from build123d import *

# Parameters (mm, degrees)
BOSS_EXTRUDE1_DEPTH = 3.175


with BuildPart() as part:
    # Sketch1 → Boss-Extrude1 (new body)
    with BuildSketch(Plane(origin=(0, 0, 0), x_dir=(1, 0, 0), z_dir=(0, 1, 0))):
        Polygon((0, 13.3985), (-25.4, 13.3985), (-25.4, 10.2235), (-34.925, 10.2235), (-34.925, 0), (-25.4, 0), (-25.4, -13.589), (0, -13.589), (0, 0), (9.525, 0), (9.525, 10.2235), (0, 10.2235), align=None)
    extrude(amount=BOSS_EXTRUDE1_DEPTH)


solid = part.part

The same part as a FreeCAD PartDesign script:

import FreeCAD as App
import Part
import Sketcher
Q = App.Units.Quantity

doc = App.newDocument("Part")
params = doc.addObject("Spreadsheet::Sheet", "Params")
for row, (alias, value) in enumerate([
    ("sketch1_width", "1 in"),
    ("sketch1_width2", "0.375 in"),
    ("sketch1_height", "0.125 in"),
    ("sketch1_height2", "0.535 in"),
    ("pad1_length", "0.125 in"),
], start=1):
    params.set(f"A{row}", alias)
    params.set(f"B{row}", "=" + value)
    params.setAlias(f"B{row}", alias)

body = doc.addObject("PartDesign::Body", "Body")

# Sketch on XZ plane
sketch1 = body.newObject("Sketcher::SketchObject", "Sketch")
sketch1.AttachmentSupport = (doc.getObject("XZ_Plane"), [""])
sketch1.MapMode = "FlatFace"
sketch1.addGeometry([
    Part.LineSegment(App.Vector(0, -13.4, 0), App.Vector(-25.4, -13.4, 0)),  # 0
    Part.LineSegment(App.Vector(-25.4, -13.4, 0), App.Vector(-25.4, -10.2, 0)),  # 1
    Part.LineSegment(App.Vector(-25.4, -10.2, 0), App.Vector(-34.9, -10.2, 0)),  # 2
    Part.LineSegment(App.Vector(-34.9, -10.2, 0), App.Vector(-34.9, 0, 0)),  # 3
    Part.LineSegment(App.Vector(-34.9, 0, 0), App.Vector(-25.4, 0, 0)),  # 4
    Part.LineSegment(App.Vector(-25.4, 0, 0), App.Vector(-25.4, 13.6, 0)),  # 5
    Part.LineSegment(App.Vector(-25.4, 13.6, 0), App.Vector(0, 13.6, 0)),  # 6
    Part.LineSegment(App.Vector(0, 13.6, 0), App.Vector(0, 0, 0)),  # 7
    Part.LineSegment(App.Vector(0, 0, 0), App.Vector(9.5, 0, 0)),  # 8
    Part.LineSegment(App.Vector(9.5, 0, 0), App.Vector(9.5, -10.2, 0)),  # 9
    Part.LineSegment(App.Vector(9.5, -10.2, 0), App.Vector(0, -10.2, 0)),  # 10
    Part.LineSegment(App.Vector(0, -10.2, 0), App.Vector(0, -13.4, 0)),  # 11
], False)
sketch1.addConstraint([
    Sketcher.Constraint("Coincident", 0, 2, 1, 1),
    Sketcher.Constraint("Coincident", 1, 2, 2, 1),
    Sketcher.Constraint("Coincident", 2, 2, 3, 1),
    Sketcher.Constraint("Coincident", 3, 2, 4, 1),
    Sketcher.Constraint("Coincident", 4, 2, 5, 1),
    Sketcher.Constraint("Coincident", 5, 2, 6, 1),
    Sketcher.Constraint("Coincident", 6, 2, 7, 1),
    Sketcher.Constraint("Coincident", 7, 2, 8, 1),
    Sketcher.Constraint("Coincident", 8, 2, 9, 1),
    Sketcher.Constraint("Coincident", 9, 2, 10, 1),
    Sketcher.Constraint("Coincident", 10, 2, 11, 1),
    Sketcher.Constraint("Coincident", 11, 2, 0, 1),
    Sketcher.Constraint("Horizontal", 0),
    Sketcher.Constraint("Vertical", 1),
    Sketcher.Constraint("Horizontal", 2),
    Sketcher.Constraint("Vertical", 3),
    Sketcher.Constraint("Horizontal", 4),
    Sketcher.Constraint("Vertical", 5),
    Sketcher.Constraint("Horizontal", 6),
    Sketcher.Constraint("Vertical", 7),
    Sketcher.Constraint("Horizontal", 8),
    Sketcher.Constraint("Vertical", 9),
    Sketcher.Constraint("Horizontal", 10),
    Sketcher.Constraint("Vertical", 11),
    Sketcher.Constraint("Coincident", 7, 2, -1, 1),
    Sketcher.Constraint("PointOnObject", 3, 2, -1),
    Sketcher.Constraint("PointOnObject", 10, 2, -2),
    Sketcher.Constraint("Horizontal", 2, 2, 9, 2),
    Sketcher.Constraint("Vertical", 1, 2, 4, 2),
    Sketcher.Constraint("Equal", 4, 8),
    Sketcher.Constraint("DistanceX", 0, 2, 0, 1, Q("1 in")),
    Sketcher.Constraint("DistanceX", 2, 2, 2, 1, Q("0.375 in")),
    Sketcher.Constraint("DistanceY", 1, 1, 1, 2, Q("0.125 in")),
    Sketcher.Constraint("DistanceY", 5, 1, 5, 2, Q("0.535 in")),
    Sketcher.Constraint("DistanceY", 3, 1, 3, 2, Q("0.4025 in")),
])
sketch1.setExpression("Constraints[30]", "Params.sketch1_width")
sketch1.setExpression("Constraints[31]", "Params.sketch1_width2")
sketch1.setExpression("Constraints[32]", "Params.sketch1_height")
sketch1.setExpression("Constraints[33]", "Params.sketch1_height2")
pad1 = body.newObject("PartDesign::Pad", "Pad")
pad1.Profile = sketch1
pad1.setExpression("Length", "Params.pad1_length")
pad1.Reversed = True

doc.recompute()
